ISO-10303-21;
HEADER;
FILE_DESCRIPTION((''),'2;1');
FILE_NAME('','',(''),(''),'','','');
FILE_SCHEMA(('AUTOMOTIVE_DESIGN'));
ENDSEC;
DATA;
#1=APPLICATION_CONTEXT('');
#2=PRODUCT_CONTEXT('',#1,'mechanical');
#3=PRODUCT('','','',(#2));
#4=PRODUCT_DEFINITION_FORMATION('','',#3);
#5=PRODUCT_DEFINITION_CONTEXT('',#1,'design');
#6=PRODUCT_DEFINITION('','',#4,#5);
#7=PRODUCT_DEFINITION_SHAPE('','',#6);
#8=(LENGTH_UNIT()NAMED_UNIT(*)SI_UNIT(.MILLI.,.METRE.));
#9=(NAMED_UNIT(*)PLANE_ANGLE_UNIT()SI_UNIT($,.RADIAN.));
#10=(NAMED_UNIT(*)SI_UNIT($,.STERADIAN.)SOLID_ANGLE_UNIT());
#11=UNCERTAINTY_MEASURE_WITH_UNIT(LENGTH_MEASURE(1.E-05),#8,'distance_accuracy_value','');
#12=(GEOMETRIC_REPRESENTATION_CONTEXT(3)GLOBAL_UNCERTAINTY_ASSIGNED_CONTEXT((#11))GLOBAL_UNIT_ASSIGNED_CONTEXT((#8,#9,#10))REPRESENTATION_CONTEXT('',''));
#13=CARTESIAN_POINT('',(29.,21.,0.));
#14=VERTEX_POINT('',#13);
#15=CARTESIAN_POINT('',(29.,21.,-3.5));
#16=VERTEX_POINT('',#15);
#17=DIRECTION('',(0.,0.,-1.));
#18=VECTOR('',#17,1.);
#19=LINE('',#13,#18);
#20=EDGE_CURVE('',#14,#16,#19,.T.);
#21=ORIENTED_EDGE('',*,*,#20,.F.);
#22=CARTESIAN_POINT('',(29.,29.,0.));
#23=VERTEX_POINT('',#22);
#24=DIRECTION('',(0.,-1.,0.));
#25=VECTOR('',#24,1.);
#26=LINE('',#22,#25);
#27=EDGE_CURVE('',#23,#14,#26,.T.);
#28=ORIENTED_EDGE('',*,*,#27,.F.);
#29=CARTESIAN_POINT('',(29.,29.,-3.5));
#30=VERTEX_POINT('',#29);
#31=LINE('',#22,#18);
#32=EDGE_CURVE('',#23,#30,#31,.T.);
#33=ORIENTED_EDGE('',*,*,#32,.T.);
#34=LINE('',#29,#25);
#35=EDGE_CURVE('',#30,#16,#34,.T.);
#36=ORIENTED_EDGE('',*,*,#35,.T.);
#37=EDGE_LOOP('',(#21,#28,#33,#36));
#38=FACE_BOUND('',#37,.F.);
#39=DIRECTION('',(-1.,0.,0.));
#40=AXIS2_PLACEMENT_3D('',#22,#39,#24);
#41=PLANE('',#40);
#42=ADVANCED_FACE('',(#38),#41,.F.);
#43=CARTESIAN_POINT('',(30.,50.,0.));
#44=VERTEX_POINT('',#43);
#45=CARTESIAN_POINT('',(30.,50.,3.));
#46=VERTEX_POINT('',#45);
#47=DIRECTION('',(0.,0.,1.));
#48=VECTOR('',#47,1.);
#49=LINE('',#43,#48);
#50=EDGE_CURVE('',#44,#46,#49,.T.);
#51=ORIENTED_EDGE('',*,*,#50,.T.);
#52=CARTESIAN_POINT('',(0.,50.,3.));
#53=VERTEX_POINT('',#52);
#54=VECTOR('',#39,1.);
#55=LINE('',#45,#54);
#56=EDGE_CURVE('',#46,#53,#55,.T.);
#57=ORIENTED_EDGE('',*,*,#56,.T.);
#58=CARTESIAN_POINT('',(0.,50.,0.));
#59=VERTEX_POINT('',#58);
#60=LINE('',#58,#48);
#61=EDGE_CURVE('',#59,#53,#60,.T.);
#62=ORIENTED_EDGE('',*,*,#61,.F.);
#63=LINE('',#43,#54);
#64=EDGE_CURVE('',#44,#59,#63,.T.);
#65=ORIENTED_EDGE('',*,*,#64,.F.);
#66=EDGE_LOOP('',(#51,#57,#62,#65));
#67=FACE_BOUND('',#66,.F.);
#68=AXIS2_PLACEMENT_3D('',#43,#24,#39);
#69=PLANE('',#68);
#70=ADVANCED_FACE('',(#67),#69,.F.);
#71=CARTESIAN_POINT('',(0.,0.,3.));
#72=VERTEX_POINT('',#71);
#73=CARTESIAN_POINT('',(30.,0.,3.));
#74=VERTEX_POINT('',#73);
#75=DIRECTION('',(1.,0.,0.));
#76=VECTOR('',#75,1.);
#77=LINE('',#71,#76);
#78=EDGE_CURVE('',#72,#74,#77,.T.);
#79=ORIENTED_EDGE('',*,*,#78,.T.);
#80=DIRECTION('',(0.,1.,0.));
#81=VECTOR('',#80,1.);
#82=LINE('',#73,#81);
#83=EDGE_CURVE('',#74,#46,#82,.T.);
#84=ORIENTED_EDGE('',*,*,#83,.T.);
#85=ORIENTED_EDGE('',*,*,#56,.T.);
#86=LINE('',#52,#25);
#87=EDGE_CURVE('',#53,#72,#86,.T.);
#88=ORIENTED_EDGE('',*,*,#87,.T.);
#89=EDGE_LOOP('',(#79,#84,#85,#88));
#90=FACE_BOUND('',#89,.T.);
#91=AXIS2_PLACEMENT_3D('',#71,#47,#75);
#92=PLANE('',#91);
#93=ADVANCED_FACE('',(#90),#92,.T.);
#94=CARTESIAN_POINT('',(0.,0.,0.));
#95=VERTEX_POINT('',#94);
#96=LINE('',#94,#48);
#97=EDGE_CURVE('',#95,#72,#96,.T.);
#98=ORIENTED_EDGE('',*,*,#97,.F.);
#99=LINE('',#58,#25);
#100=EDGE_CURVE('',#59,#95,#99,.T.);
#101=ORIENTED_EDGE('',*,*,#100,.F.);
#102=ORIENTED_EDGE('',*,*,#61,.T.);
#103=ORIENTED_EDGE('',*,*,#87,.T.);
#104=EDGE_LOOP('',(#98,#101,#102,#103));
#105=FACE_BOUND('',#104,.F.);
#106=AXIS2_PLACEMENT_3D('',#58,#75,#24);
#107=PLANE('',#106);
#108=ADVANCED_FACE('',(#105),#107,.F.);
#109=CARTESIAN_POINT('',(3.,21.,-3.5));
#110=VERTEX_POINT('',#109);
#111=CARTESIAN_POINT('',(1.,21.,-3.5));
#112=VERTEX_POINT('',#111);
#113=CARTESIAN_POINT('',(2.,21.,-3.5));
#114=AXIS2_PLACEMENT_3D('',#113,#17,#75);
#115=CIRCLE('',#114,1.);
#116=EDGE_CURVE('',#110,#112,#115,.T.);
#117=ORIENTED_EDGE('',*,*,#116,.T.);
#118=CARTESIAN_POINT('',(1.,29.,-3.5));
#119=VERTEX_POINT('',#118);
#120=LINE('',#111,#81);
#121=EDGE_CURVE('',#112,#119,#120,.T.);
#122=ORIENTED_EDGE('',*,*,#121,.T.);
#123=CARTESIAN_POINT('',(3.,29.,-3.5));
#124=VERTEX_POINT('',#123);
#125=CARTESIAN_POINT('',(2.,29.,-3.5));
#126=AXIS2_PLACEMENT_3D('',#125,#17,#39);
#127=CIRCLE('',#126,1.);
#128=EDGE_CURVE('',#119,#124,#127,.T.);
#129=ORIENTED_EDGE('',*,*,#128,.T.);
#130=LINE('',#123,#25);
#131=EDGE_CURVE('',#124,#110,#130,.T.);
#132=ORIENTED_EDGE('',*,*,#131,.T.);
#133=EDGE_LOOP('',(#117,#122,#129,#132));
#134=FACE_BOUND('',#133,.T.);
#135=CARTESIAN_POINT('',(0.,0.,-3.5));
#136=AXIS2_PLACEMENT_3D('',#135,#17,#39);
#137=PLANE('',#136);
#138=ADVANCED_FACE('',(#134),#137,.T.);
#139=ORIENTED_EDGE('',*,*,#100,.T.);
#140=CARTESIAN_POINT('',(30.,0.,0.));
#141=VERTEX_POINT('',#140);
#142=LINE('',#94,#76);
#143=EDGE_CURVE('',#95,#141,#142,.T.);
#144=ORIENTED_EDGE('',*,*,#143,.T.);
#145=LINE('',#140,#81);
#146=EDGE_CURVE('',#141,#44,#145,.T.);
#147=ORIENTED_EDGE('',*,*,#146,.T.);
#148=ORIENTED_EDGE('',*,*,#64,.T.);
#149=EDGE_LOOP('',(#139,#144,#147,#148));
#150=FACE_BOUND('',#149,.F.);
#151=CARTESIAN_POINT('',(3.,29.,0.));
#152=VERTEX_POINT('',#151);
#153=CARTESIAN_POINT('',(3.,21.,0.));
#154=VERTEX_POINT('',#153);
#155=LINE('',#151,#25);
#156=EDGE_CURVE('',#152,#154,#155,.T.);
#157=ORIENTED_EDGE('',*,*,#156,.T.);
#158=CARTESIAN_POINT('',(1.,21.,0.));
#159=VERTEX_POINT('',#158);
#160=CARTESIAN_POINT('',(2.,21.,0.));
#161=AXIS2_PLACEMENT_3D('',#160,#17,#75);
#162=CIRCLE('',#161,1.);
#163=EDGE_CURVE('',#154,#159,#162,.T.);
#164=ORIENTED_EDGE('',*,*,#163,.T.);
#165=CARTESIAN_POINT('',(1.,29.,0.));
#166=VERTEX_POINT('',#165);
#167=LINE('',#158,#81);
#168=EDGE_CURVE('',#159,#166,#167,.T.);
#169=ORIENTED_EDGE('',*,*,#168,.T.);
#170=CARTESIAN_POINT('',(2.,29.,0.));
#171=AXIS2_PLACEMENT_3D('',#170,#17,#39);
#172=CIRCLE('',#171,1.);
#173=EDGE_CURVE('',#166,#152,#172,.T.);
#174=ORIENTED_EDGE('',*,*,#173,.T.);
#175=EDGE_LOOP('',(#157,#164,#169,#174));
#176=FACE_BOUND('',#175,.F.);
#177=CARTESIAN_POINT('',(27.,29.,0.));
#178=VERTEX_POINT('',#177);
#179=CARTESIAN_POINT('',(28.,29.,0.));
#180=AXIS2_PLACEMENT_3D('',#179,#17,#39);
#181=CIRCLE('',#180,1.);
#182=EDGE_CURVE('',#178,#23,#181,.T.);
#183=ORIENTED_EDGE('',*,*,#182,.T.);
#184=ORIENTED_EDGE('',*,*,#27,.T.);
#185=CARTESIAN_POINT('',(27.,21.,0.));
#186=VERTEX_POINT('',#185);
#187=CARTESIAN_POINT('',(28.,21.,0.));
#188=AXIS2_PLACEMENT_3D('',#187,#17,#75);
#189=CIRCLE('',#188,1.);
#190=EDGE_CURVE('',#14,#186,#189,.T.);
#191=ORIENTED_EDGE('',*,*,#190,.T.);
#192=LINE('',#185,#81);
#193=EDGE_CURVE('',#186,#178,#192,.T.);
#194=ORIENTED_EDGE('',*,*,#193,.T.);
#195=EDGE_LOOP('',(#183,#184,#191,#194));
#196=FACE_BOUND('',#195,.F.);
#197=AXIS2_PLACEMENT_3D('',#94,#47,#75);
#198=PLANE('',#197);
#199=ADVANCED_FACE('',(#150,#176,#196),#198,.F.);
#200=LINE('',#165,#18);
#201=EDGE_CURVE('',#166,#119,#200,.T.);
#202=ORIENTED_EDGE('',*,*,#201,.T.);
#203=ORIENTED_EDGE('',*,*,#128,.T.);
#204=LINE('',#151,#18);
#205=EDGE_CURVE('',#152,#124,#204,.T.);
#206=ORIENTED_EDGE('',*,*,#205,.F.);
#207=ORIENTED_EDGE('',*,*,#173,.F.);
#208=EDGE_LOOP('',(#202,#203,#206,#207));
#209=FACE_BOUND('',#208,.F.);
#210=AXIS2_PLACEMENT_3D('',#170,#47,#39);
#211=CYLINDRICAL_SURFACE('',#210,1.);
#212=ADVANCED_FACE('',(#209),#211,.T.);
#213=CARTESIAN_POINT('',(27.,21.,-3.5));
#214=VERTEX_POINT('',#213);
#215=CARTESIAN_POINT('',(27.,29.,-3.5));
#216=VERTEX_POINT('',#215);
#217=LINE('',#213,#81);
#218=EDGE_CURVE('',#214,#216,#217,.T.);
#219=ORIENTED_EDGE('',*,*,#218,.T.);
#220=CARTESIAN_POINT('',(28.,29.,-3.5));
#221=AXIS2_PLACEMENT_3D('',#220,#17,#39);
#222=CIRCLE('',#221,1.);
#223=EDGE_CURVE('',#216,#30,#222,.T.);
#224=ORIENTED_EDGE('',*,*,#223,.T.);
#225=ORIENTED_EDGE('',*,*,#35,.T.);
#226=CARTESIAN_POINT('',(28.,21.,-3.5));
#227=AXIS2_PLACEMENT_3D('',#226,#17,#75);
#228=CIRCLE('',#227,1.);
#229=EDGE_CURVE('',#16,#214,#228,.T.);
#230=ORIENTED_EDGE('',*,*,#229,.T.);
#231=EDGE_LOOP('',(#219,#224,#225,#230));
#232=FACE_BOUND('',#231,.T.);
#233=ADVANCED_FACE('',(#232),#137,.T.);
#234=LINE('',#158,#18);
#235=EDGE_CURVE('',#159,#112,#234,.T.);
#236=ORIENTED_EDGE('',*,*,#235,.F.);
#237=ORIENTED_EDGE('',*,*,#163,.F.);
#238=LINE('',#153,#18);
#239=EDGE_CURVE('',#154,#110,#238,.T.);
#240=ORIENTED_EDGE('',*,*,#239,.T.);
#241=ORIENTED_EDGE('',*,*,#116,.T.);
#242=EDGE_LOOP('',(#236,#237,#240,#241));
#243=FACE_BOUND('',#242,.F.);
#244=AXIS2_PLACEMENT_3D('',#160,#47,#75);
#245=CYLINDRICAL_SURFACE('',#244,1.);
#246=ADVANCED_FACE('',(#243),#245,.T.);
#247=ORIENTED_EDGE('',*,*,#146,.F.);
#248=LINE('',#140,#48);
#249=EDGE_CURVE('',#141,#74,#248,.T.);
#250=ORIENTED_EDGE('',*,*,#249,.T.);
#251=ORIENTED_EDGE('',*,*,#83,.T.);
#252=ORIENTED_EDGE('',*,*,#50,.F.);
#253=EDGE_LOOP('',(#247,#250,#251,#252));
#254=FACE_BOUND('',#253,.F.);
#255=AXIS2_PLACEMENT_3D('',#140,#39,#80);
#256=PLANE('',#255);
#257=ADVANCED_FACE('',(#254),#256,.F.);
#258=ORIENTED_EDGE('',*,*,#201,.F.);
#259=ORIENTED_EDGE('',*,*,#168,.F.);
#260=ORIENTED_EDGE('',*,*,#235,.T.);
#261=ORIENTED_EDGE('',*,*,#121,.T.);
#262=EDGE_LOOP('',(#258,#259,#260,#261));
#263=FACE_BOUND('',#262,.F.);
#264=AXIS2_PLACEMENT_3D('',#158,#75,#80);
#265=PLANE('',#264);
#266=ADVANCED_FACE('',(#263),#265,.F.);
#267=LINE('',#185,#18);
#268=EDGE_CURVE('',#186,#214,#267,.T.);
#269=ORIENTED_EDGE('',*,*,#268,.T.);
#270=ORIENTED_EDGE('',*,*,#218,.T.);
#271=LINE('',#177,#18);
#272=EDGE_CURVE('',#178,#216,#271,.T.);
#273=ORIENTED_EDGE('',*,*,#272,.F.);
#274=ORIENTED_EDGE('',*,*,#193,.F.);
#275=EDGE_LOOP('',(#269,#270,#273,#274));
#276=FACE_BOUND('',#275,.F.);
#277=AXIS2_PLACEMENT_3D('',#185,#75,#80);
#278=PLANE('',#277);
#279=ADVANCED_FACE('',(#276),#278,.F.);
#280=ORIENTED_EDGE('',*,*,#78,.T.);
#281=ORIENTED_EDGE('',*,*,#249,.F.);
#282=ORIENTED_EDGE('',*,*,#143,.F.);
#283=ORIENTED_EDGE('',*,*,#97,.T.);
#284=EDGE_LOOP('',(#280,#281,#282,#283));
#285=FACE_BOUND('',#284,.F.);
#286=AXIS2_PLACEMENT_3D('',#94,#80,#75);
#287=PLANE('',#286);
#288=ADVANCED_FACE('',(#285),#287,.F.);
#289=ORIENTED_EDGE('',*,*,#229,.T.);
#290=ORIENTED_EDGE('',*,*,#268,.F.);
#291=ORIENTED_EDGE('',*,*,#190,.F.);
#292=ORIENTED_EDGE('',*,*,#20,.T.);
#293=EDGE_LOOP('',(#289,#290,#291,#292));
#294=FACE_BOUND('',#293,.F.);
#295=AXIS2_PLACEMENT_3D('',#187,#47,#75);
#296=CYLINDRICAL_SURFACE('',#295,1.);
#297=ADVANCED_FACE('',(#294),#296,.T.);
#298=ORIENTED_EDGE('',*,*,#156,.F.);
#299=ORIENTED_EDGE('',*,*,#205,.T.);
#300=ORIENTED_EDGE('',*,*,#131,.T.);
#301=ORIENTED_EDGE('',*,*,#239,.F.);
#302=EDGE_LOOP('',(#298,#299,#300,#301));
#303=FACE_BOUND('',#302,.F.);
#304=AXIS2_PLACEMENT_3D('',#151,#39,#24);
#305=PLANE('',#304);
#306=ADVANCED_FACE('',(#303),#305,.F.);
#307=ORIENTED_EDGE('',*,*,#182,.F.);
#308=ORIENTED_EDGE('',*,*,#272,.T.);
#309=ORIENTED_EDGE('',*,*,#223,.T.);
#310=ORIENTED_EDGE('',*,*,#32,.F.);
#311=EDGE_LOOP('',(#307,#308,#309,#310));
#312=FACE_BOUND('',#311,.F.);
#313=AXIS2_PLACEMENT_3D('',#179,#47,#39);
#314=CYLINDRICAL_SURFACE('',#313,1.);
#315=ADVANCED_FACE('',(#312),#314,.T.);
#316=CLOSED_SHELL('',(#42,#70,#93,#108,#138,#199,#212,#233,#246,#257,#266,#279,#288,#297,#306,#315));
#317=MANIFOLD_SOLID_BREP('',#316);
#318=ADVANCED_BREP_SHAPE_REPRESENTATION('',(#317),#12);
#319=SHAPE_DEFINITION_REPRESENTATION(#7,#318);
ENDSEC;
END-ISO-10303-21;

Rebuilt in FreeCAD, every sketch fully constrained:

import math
import FreeCAD as App
import Part
import Sketcher
from FreeCAD import Vector
Q = App.Units.Quantity


def add_polygon(sketch, points):
    """Adds a closed chain of lines whose ends are joined by coincident constraints."""
    first, n = sketch.GeometryCount, len(points)
    for a, b in zip(points, points[1:] + points[:1]):
        sketch.addGeometry(Part.LineSegment(App.Vector(*a, 0), App.Vector(*b, 0)), False)
    for i in range(n):
        sketch.addConstraint(Sketcher.Constraint("Coincident", first + i, 2, first + (i + 1) % n, 1))

doc = App.newDocument("Part")
body = doc.addObject("PartDesign::Body", "Body")

# Sketch on XY plane
sketch1 = body.newObject("Sketcher::SketchObject", "Sketch")
sketch1.AttachmentSupport = (doc.getObject("XY_Plane"), [""])
sketch1.MapMode = "FlatFace"
add_polygon(sketch1, [(0, 50), (0, 0), (30, 0), (30, 50)])  # lines 0-3
sketch1.addConstraint([
    Sketcher.Constraint("Vertical", 0),
    Sketcher.Constraint("Horizontal", 1),
    Sketcher.Constraint("Vertical", 2),
    Sketcher.Constraint("Horizontal", 3),
    Sketcher.Constraint("Coincident", 0, 2, -1, 1),
    Sketcher.Constraint("DistanceX", 1, 1, 1, 2, Q("30 mm")),
    Sketcher.Constraint("DistanceY", 0, 2, 0, 1, Q("50 mm")),
])
pad1 = body.newObject("PartDesign::Pad", "Pad")
pad1.Profile = sketch1
pad1.Length = 3

# Sketch on XY plane
sketch2 = body.newObject("Sketcher::SketchObject", "Sketch001")
sketch2.AttachmentSupport = (doc.getObject("XY_Plane"), [""])
sketch2.MapMode = "FlatFace"
sketch2.addGeometry([
    Part.ArcOfCircle(Part.Circle(Vector(28, 29, 0), Vector(0, 0, 1), 1), math.radians(0), math.radians(180)),  # 0
    Part.LineSegment(Vector(29, 29, 0), Vector(29, 21, 0)),  # 1
    Part.ArcOfCircle(Part.Circle(Vector(28, 21, 0), Vector(0, 0, 1), 1), math.radians(180), math.radians(360)),  # 2
    Part.LineSegment(Vector(27, 21, 0), Vector(27, 29, 0)),  # 3
    Part.ArcOfCircle(Part.Circle(Vector(2, 29, 0), Vector(0, 0, 1), 1), math.radians(0), math.radians(180)),  # 4
    Part.LineSegment(Vector(3, 29, 0), Vector(3, 21, 0)),  # 5
    Part.ArcOfCircle(Part.Circle(Vector(2, 21, 0), Vector(0, 0, 1), 1), math.radians(180), math.radians(360)),  # 6
    Part.LineSegment(Vector(1, 21, 0), Vector(1, 29, 0)),  # 7
], False)
sketch2.addConstraint([
    Sketcher.Constraint("Tangent", 0, 1, 1, 1),
    Sketcher.Constraint("Tangent", 1, 2, 2, 2),
    Sketcher.Constraint("Tangent", 2, 1, 3, 1),
    Sketcher.Constraint("Tangent", 3, 2, 0, 2),
    Sketcher.Constraint("Tangent", 4, 1, 5, 1),
    Sketcher.Constraint("Tangent", 5, 2, 6, 2),
    Sketcher.Constraint("Tangent", 6, 1, 7, 1),
    Sketcher.Constraint("Tangent", 7, 2, 4, 2),
    Sketcher.Constraint("Vertical", 1),
    Sketcher.Constraint("Vertical", 3),
    Sketcher.Constraint("Vertical", 5),
    Sketcher.Constraint("Vertical", 7),
    Sketcher.Constraint("Equal", 2, 4),
    Sketcher.Constraint("Horizontal", 0, 3, 4, 3),
    Sketcher.Constraint("Horizontal", 2, 3, 6, 3),
    Sketcher.Constraint("Radius", 0, Q("1 mm")),
    Sketcher.Constraint("DistanceX", -1, 1, 6, 1, Q("1 mm")),
    Sketcher.Constraint("DistanceX", 6, 3, 2, 1, Q("25 mm")),
    Sketcher.Constraint("DistanceY", 1, 2, 1, 1, Q("8 mm")),
    Sketcher.Constraint("DistanceY", -1, 1, 0, 3, Q("29 mm")),
])
pad2 = body.newObject("PartDesign::Pad", "Pad001")
pad2.Profile = sketch2
pad2.Length = 3.5
pad2.Reversed = True

doc.recompute()
